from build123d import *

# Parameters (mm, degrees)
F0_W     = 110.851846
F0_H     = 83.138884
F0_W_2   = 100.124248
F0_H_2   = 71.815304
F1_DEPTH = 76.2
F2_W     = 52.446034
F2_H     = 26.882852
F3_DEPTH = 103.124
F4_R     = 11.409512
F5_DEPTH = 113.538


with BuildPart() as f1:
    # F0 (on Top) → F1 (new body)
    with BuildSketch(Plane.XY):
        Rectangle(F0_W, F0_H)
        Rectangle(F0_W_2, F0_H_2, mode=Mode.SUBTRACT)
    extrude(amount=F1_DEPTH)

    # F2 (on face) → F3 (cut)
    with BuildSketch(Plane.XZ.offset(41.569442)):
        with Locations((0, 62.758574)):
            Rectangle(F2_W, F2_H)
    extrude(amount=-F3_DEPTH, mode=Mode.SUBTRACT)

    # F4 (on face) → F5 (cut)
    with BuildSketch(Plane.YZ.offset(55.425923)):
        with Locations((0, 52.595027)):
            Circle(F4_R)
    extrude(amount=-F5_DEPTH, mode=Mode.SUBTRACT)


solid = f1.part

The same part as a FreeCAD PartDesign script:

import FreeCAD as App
import Part
import Sketcher
from FreeCAD import Vector
Q = App.Units.Quantity

doc = App.newDocument("Part")
params = doc.addObject("Spreadsheet::Sheet", "Params")
for row, (alias, value) in enumerate([
    ("pad1_length", "3 in"),
    ("pocket1_length", "4.06 in"),
    ("pocket2_length", "4.47 in"),
], start=1):
    params.set(f"A{row}", alias)
    params.set(f"B{row}", "=" + value)
    params.setAlias(f"B{row}", alias)

body = doc.addObject("PartDesign::Body", "Body")

# Sketch on XY plane
sketch1 = body.newObject("Sketcher::SketchObject", "Sketch")
sketch1.AttachmentSupport = (doc.getObject("XY_Plane"), [""])
sketch1.MapMode = "FlatFace"
sketch1.addGeometry(Part.LineSegment(Vector(-55, 42, 0), Vector(-55, -42, 0)), False)
sketch1.addGeometry(Part.LineSegment(Vector(-55, -42, 0), Vector(55, -42, 0)), False)
sketch1.addGeometry(Part.LineSegment(Vector(55, -42, 0), Vector(55, 42, 0)), False)
sketch1.addGeometry(Part.LineSegment(Vector(55, 42, 0), Vector(-55, 42, 0)), False)
sketch1.addGeometry(Part.LineSegment(Vector(50, -36, 0), Vector(-50, -36, 0)), False)
sketch1.addGeometry(Part.LineSegment(Vector(-50, -36, 0), Vector(-50, 36, 0)), False)
sketch1.addGeometry(Part.LineSegment(Vector(-50, 36, 0), Vector(50, 36, 0)), False)
sketch1.addGeometry(Part.LineSegment(Vector(50, 36, 0), Vector(50, -36, 0)), False)
sketch1.addConstraint(Sketcher.Constraint("Coincident", 0, 2, 1, 1))
sketch1.addConstraint(Sketcher.Constraint("Coincident", 1, 2, 2, 1))
sketch1.addConstraint(Sketcher.Constraint("Coincident", 2, 2, 3, 1))
sketch1.addConstraint(Sketcher.Constraint("Coincident", 3, 2, 0, 1))
sketch1.addConstraint(Sketcher.Constraint("Coincident", 4, 2, 5, 1))
sketch1.addConstraint(Sketcher.Constraint("Coincident", 5, 2, 6, 1))
sketch1.addConstraint(Sketcher.Constraint("Coincident", 6, 2, 7, 1))
sketch1.addConstraint(Sketcher.Constraint("Coincident", 7, 2, 4, 1))
sketch1.addConstraint(Sketcher.Constraint("Vertical", 0))
sketch1.addConstraint(Sketcher.Constraint("Horizontal", 1))
sketch1.addConstraint(Sketcher.Constraint("Vertical", 2))
sketch1.addConstraint(Sketcher.Constraint("Horizontal", 3))
sketch1.addConstraint(Sketcher.Constraint("Horizontal", 4))
sketch1.addConstraint(Sketcher.Constraint("Vertical", 5))
sketch1.addConstraint(Sketcher.Constraint("Horizontal", 6))
sketch1.addConstraint(Sketcher.Constraint("Vertical", 7))
sketch1.addConstraint(Sketcher.Constraint("Symmetric", 0, 2, 2, 2, -1, 1))
sketch1.addConstraint(Sketcher.Constraint("Symmetric", 4, 2, 6, 2, -1, 1))
sketch1.addConstraint(Sketcher.Constraint("DistanceX", 0, 2, 4, 2, Q("5.363799 mm")))
sketch1.addConstraint(Sketcher.Constraint("DistanceX", 1, 1, 1, 2, Q("110.851846 mm")))
sketch1.addConstraint(Sketcher.Constraint("DistanceY", 0, 2, 0, 1, Q("83.138884 mm")))
sketch1.addConstraint(Sketcher.Constraint("DistanceY", 5, 1, 5, 2, Q("71.815304 mm")))
pad1 = body.newObject("PartDesign::Pad", "Pad")
pad1.Profile = sketch1
pad1.setExpression("Length", "Params.pad1_length")

# Sketch on XZ plane
sketch2 = body.newObject("Sketcher::SketchObject", "Sketch001")
sketch2.AttachmentSupport = (doc.getObject("XZ_Plane"), [""])
sketch2.MapMode = "FlatFace"
sketch2.AttachmentOffset = App.Placement(Vector(0, 0, 41.569442), App.Rotation())
sketch2.addGeometry(Part.LineSegment(Vector(-26, 76, 0), Vector(-26, 49, 0)), False)
sketch2.addGeometry(Part.LineSegment(Vector(-26, 49, 0), Vector(26, 49, 0)), False)
sketch2.addGeometry(Part.LineSegment(Vector(26, 49, 0), Vector(26, 76, 0)), False)
sketch2.addGeometry(Part.LineSegment(Vector(26, 76, 0), Vector(-26, 76, 0)), False)
sketch2.addConstraint(Sketcher.Constraint("Coincident", 0, 2, 1, 1))
sketch2.addConstraint(Sketcher.Constraint("Coincident", 1, 2, 2, 1))
sketch2.addConstraint(Sketcher.Constraint("Coincident", 2, 2, 3, 1))
sketch2.addConstraint(Sketcher.Constraint("Coincident", 3, 2, 0, 1))
sketch2.addConstraint(Sketcher.Constraint("Vertical", 0))
sketch2.addConstraint(Sketcher.Constraint("Horizontal", 1))
sketch2.addConstraint(Sketcher.Constraint("Vertical", 2))
sketch2.addConstraint(Sketcher.Constraint("Horizontal", 3))
sketch2.addConstraint(Sketcher.Constraint("DistanceY", -1, 1, 2, 2, Q("3 in")))
sketch2.addConstraint(Sketcher.Constraint("DistanceY", 0, 2, 0, 1, Q("26.882852 mm")))
sketch2.addConstraint(Sketcher.Constraint("DistanceX", 1, 1, 1, 2, Q("52.446034 mm")))
sketch2.addConstraint(Sketcher.Constraint("DistanceX", 0, 2, -1, 1, Q("26.223017 mm")))
pocket1 = body.newObject("PartDesign::Pocket", "Pocket")
pocket1.Profile = sketch2
pocket1.setExpression("Length", "Params.pocket1_length")

# Sketch on YZ plane
sketch3 = body.newObject("Sketcher::SketchObject", "Sketch002")
sketch3.AttachmentSupport = (doc.getObject("YZ_Plane"), [""])
sketch3.MapMode = "FlatFace"
sketch3.AttachmentOffset = App.Placement(Vector(0, 0, 55.425923), App.Rotation())
sketch3.addGeometry(Part.Circle(Vector(0, 53, 0), Vector(0, 0, 1), 11), False)
sketch3.addConstraint(Sketcher.Constraint("PointOnObject", 0, 3, -2))
sketch3.addConstraint(Sketcher.Constraint("Diameter", 0, Q("22.819024 mm")))
sketch3.addConstraint(Sketcher.Constraint("DistanceY", -1, 1, 0, 3, Q("52.595027 mm")))
pocket2 = body.newObject("PartDesign::Pocket", "Pocket001")
pocket2.Profile = sketch3
pocket2.setExpression("Length", "Params.pocket2_length")

doc.recompute()
